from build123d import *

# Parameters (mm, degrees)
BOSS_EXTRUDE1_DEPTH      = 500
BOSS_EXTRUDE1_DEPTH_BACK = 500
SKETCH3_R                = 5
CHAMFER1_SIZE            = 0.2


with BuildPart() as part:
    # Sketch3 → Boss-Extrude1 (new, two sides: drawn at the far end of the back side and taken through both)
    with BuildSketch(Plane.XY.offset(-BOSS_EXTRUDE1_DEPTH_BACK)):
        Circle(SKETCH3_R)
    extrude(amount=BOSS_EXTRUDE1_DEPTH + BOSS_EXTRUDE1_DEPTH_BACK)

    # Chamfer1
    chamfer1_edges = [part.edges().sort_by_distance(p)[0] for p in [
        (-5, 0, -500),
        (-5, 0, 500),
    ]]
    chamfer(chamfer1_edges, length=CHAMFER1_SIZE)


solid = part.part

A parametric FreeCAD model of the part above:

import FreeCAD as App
import Part
import Sketcher
from FreeCAD import Vector
Q = App.Units.Quantity


def edges_at(feature, points):
    """Names of the edges that pass closest to the given points."""
    edges = feature.Shape.Edges
    near = lambda p: min(range(len(edges)), key=lambda i: edges[i].distToShape(Part.Vertex(*p))[0])
    return sorted({f"Edge{near(p) + 1}" for p in points})

doc = App.newDocument("Part")
body = doc.addObject("PartDesign::Body", "Body")

sketch1 = body.newObject("Sketcher::SketchObject", "Sketch")
sketch1.AttachmentSupport = (doc.getObject("XY_Plane"), [""])
sketch1.MapMode = "FlatFace"
sketch1.addGeometry(Part.Circle(Vector(0, 0, 0), Vector(0, 0, 1), 5), False)
sketch1.addConstraint([
    Sketcher.Constraint("Coincident", 0, 3, -1, 1),
    Sketcher.Constraint("Diameter", 0, Q("10 mm")),
])
pad1 = body.newObject("PartDesign::Pad", "Pad")
pad1.Profile = sketch1
pad1.Type = "TwoLengths"
pad1.Length = 500
pad1.Length2 = 500
doc.recompute()

chamfer = body.newObject("PartDesign::Chamfer", "Chamfer")
chamfer.Base = (pad1, edges_at(pad1, [(-5, 0, -500), (-5, 0, 500)]))
chamfer.Size = 0.2

doc.recompute()
